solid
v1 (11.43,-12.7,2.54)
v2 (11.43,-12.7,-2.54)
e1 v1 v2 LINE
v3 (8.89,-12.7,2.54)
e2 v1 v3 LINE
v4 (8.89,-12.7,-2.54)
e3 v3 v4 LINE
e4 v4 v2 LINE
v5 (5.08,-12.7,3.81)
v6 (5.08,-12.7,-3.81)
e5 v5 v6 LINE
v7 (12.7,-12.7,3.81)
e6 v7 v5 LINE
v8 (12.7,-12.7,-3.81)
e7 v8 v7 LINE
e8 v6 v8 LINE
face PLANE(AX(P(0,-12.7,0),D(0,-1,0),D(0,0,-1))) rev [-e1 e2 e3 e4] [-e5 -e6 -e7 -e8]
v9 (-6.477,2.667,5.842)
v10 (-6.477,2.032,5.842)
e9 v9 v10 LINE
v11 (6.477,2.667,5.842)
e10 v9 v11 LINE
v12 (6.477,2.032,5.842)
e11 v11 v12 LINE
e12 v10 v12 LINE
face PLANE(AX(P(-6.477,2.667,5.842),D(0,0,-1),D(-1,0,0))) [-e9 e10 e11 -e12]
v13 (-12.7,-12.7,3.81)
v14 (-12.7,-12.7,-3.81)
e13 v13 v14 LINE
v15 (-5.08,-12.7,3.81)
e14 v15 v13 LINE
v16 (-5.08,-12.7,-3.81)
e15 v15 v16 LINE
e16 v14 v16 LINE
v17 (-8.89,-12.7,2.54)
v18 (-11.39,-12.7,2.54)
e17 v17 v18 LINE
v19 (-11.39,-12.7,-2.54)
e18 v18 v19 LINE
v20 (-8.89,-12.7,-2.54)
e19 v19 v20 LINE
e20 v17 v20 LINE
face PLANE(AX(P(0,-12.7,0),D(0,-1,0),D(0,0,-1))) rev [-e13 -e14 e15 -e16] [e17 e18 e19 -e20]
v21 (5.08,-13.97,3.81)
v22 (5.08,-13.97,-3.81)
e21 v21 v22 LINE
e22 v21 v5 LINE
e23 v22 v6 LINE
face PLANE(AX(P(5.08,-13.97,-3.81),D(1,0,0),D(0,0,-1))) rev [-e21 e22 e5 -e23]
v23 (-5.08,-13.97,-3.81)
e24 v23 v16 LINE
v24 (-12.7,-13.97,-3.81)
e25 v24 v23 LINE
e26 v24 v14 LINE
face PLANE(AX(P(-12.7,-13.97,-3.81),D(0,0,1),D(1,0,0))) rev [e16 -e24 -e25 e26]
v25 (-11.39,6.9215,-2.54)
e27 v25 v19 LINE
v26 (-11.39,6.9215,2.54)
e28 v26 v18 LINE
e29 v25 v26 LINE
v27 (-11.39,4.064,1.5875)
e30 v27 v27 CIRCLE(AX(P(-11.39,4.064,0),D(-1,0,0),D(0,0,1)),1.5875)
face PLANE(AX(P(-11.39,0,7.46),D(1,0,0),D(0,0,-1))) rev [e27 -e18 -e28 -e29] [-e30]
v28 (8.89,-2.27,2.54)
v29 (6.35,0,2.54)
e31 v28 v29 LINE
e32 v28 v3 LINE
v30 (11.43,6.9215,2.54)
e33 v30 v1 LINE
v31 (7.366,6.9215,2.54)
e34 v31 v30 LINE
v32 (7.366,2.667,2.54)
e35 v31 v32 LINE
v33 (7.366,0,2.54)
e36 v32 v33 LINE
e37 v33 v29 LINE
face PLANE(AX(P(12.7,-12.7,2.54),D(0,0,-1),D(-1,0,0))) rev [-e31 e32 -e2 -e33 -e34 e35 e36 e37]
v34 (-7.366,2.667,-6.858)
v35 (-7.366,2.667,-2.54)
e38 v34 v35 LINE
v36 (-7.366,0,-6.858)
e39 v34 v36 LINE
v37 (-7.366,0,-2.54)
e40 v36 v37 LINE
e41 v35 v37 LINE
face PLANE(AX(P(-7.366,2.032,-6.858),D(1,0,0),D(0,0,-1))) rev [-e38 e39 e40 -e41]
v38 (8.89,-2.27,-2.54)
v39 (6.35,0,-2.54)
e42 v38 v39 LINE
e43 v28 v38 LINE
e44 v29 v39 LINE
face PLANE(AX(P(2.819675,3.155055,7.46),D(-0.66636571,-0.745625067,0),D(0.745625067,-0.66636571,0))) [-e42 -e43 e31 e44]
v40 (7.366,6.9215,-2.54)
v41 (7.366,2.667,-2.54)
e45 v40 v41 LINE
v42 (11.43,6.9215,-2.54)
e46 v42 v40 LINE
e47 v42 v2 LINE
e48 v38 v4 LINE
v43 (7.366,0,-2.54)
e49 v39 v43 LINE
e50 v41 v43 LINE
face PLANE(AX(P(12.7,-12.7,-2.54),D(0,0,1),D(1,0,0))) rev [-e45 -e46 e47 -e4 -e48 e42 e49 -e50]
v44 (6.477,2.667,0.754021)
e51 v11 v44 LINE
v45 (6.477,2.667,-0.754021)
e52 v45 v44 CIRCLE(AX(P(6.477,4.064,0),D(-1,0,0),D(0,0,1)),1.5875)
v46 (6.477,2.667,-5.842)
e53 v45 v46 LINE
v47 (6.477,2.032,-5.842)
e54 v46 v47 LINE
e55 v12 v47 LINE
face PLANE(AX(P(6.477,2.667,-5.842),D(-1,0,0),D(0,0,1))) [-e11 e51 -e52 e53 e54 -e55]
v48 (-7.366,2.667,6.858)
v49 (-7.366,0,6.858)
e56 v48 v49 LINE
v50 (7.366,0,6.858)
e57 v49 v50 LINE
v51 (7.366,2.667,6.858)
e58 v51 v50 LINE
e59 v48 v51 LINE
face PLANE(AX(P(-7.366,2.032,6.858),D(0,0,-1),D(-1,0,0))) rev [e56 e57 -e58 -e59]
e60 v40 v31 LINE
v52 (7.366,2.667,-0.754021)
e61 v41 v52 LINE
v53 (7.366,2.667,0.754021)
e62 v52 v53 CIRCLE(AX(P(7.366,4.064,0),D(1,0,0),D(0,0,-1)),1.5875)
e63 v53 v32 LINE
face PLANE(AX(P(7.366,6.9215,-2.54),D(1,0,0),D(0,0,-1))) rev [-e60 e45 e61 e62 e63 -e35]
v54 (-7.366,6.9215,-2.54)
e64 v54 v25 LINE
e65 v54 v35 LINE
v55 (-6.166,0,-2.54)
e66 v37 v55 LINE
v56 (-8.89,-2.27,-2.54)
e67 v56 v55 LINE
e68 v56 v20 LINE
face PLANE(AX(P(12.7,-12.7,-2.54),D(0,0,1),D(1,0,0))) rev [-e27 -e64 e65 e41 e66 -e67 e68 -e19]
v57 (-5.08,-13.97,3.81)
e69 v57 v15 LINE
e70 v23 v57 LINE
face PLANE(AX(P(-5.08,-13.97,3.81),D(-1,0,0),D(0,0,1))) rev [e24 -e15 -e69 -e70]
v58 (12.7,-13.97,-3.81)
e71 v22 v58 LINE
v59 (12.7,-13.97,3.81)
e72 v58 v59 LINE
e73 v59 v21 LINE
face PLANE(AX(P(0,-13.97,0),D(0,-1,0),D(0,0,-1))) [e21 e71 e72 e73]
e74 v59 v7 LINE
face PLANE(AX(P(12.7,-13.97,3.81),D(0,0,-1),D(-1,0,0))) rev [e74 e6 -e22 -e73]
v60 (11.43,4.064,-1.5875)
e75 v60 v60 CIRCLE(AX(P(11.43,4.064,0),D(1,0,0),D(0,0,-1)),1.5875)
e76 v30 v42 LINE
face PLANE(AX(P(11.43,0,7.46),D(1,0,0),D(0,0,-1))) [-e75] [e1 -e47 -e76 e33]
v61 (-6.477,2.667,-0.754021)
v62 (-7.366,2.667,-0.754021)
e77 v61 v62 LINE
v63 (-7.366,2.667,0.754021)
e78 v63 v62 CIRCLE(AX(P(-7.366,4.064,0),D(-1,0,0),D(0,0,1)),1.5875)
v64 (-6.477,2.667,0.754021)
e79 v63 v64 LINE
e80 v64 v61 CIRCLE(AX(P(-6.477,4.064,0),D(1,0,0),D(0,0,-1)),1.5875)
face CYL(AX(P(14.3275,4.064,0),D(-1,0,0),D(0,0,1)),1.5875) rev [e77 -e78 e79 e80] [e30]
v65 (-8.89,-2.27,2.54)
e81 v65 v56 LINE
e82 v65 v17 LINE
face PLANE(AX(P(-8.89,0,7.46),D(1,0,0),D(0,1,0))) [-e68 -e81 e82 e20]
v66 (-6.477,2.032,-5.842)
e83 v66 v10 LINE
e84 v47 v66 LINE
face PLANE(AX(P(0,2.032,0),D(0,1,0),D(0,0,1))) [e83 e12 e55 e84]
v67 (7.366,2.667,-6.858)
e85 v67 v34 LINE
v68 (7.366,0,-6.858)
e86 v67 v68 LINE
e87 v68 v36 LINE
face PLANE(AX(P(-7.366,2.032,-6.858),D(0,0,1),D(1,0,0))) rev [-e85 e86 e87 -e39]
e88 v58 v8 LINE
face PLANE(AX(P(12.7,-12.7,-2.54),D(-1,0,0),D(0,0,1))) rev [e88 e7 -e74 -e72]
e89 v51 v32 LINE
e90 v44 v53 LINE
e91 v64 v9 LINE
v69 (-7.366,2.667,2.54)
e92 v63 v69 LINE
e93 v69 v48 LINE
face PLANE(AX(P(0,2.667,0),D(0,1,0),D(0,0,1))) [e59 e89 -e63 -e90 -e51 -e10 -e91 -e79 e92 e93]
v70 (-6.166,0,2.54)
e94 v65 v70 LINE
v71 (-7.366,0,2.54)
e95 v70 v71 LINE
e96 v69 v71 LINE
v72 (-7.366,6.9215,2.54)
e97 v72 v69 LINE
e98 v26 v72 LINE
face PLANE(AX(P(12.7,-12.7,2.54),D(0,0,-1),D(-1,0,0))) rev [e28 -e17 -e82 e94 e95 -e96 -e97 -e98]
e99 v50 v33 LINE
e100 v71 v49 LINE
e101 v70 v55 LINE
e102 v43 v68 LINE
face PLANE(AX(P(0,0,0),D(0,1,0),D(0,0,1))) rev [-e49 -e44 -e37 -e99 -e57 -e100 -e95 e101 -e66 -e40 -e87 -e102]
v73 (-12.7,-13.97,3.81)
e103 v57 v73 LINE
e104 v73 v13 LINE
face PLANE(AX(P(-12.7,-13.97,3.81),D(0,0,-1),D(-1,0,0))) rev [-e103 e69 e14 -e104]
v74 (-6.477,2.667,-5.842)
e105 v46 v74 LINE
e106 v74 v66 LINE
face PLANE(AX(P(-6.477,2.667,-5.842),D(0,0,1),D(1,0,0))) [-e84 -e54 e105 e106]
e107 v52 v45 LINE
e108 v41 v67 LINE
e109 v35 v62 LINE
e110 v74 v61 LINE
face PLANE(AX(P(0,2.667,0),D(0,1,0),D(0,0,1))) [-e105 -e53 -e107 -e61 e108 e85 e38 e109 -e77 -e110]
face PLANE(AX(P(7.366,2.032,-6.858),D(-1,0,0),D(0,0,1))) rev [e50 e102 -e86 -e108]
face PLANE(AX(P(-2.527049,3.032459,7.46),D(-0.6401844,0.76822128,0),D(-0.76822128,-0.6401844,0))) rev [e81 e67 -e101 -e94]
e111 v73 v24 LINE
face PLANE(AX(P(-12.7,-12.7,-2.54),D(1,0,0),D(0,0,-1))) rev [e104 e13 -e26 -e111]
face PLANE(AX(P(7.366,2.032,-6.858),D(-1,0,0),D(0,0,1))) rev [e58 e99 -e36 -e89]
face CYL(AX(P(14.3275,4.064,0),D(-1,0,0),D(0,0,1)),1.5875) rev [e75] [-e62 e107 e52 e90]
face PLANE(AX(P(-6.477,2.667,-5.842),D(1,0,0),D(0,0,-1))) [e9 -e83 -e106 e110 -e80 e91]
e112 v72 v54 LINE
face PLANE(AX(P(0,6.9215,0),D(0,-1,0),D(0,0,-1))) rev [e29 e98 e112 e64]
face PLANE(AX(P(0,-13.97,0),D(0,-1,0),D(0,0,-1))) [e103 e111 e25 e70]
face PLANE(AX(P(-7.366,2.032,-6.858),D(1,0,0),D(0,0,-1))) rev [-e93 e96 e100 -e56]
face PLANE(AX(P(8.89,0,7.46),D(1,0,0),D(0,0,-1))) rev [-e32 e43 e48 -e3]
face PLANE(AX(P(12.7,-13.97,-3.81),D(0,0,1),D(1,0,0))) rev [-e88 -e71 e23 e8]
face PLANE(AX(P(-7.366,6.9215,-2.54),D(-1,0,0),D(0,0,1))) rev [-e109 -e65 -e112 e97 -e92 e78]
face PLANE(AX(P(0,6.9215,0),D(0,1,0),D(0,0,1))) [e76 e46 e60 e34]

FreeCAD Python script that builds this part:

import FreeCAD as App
import Part
import Sketcher
Q = App.Units.Quantity


def add_polygon(sketch, points):
    """Adds a closed chain of lines whose ends are joined by coincident constraints."""
    first, n = sketch.GeometryCount, len(points)
    for a, b in zip(points, points[1:] + points[:1]):
        sketch.addGeometry(Part.LineSegment(App.Vector(*a, 0), App.Vector(*b, 0)), False)
    for i in range(n):
        sketch.addConstraint(Sketcher.Constraint("Coincident", first + i, 2, first + (i + 1) % n, 1))

doc = App.newDocument("Part")
body = doc.addObject("PartDesign::Body", "Body")

# Sketch on XZ plane
sketch1 = body.newObject("Sketcher::SketchObject", "Sketch")
sketch1.AttachmentSupport = (doc.getObject("XZ_Plane"), [""])
sketch1.MapMode = "FlatFace"
add_polygon(sketch1, [(-7, -7), (-7, 7), (7, 7), (7, -7)])  # lines 0-3
sketch1.addConstraint(Sketcher.Constraint("Vertical", 0))
sketch1.addConstraint(Sketcher.Constraint("Horizontal", 1))
sketch1.addConstraint(Sketcher.Constraint("Vertical", 2))
sketch1.addConstraint(Sketcher.Constraint("Horizontal", 3))
sketch1.addConstraint(Sketcher.Constraint("Symmetric", 0, 2, 2, 2, -1, 1))
sketch1.addConstraint(Sketcher.Constraint("DistanceX", 1, 1, 1, 2, Q("0.58 in")))
sketch1.addConstraint(Sketcher.Constraint("DistanceY", 0, 1, 0, 2, Q("0.54 in")))
pad1 = body.newObject("PartDesign::Pad", "Pad")
pad1.Profile = sketch1
pad1.Length = Q("0.08 in")
pad1.Reversed = True

# Sketch on XZ plane
sketch2 = body.newObject("Sketcher::SketchObject", "Sketch001")
sketch2.AttachmentSupport = (doc.getObject("XZ_Plane"), [""])
sketch2.MapMode = "FlatFace"
add_polygon(sketch2, [(13, -3), (13, 3), (-13, 3), (-13, -3)])  # lines 0-3
sketch2.addConstraint(Sketcher.Constraint("Vertical", 0))
sketch2.addConstraint(Sketcher.Constraint("Horizontal", 1))
sketch2.addConstraint(Sketcher.Constraint("Vertical", 2))
sketch2.addConstraint(Sketcher.Constraint("Horizontal", 3))
sketch2.addConstraint(Sketcher.Constraint("Symmetric", 0, 2, 2, 2, -1, 1))
sketch2.addConstraint(Sketcher.Constraint("DistanceX", 1, 2, 1, 1, Q("1 in")))
sketch2.addConstraint(Sketcher.Constraint("DistanceY", 0, 1, 0, 2, Q("0.2 in")))
pad2 = body.newObject("PartDesign::Pad", "Pad001")
pad2.Profile = sketch2
pad2.Length = Q("0.5 in")

# Sketch on XZ plane
sketch3 = body.newObject("Sketcher::SketchObject", "Sketch002")
sketch3.AttachmentSupport = (doc.getObject("XZ_Plane"), [""])
sketch3.MapMode = "FlatFace"
sketch3.AttachmentOffset = App.Placement(App.Vector(0, 0, 0.5 * 25.4), App.Rotation())
add_polygon(sketch3, [(5, 4), (5, -4), (13, -4), (13, 4)])  # lines 0-3
add_polygon(sketch3, [(-13, 4), (-13, -4), (-5, -4), (-5, 4)])  # lines 4-7
sketch3.addConstraint(Sketcher.Constraint("Vertical", 0))
sketch3.addConstraint(Sketcher.Constraint("Horizontal", 1))
sketch3.addConstraint(Sketcher.Constraint("Vertical", 2))
sketch3.addConstraint(Sketcher.Constraint("Horizontal", 3))
sketch3.addConstraint(Sketcher.Constraint("Vertical", 4))
sketch3.addConstraint(Sketcher.Constraint("Horizontal", 5))
sketch3.addConstraint(Sketcher.Constraint("Vertical", 6))
sketch3.addConstraint(Sketcher.Constraint("Horizontal", 7))
sketch3.addConstraint(Sketcher.Constraint("Symmetric", 2, 2, 4, 2, -1, 1))
sketch3.addConstraint(Sketcher.Constraint("Symmetric", 0, 2, 6, 2, -1, 1))
sketch3.addConstraint(Sketcher.Constraint("Horizontal", 1, 2, 4, 2))
sketch3.addConstraint(Sketcher.Constraint("Equal", 7, 0))
sketch3.addConstraint(Sketcher.Constraint("DistanceX", 1, 1, 1, 2, Q("0.3 in")))
sketch3.addConstraint(Sketcher.Constraint("DistanceX", 4, 2, 1, 2, Q("1 in")))
pad3 = body.newObject("PartDesign::Pad", "Pad002")
pad3.Profile = sketch3
pad3.Length = Q("0.05 in")

# Sketch on XY plane
sketch4 = body.newObject("Sketcher::SketchObject", "Sketch003")
sketch4.AttachmentSupport = (doc.getObject("XY_Plane"), [""])
sketch4.MapMode = "FlatFace"
sketch4.AttachmentOffset = App.Placement(App.Vector(0, 0, -0.1 * 25.4), App.Rotation())
add_polygon(sketch4, [(12.7, 0), (12.7, -12.7), (11.4, -12.7), (11.4, 0)])  # lines 0-3
add_polygon(sketch4, [(8.9, -2.3), (8.9, -12.7), (-8.9, -12.7), (-8.9, -2.3), (-6.2, 0), (6.3, 0)])  # lines 4-9
add_polygon(sketch4, [(-11.4, 0), (-11.4, -12.7), (-12.7, -12.7), (-12.7, 0)])  # lines 10-13
sketch4.addConstraint(Sketcher.Constraint("Vertical", 0))
sketch4.addConstraint(Sketcher.Constraint("Horizontal", 1))
sketch4.addConstraint(Sketcher.Constraint("Vertical", 2))
sketch4.addConstraint(Sketcher.Constraint("Horizontal", 3))
sketch4.addConstraint(Sketcher.Constraint("Vertical", 4))
sketch4.addConstraint(Sketcher.Constraint("Horizontal", 5))
sketch4.addConstraint(Sketcher.Constraint("Vertical", 6))
sketch4.addConstraint(Sketcher.Constraint("Horizontal", 8))
sketch4.addConstraint(Sketcher.Constraint("Vertical", 10))
sketch4.addConstraint(Sketcher.Constraint("Horizontal", 11))
sketch4.addConstraint(Sketcher.Constraint("Vertical", 12))
sketch4.addConstraint(Sketcher.Constraint("Horizontal", 13))
sketch4.addConstraint(Sketcher.Constraint("Symmetric", 3, 2, 12, 2, -1, 1))
sketch4.addConstraint(Sketcher.Constraint("Symmetric", 6, 2, 9, 2, -2))
sketch4.addConstraint(Sketcher.Constraint("PointOnObject", 2, 2, -1))
sketch4.addConstraint(Sketcher.Constraint("PointOnObject", 7, 2, -1))
sketch4.addConstraint(Sketcher.Constraint("Horizontal", 1, 2, 4, 2))
sketch4.addConstraint(Sketcher.Constraint("Horizontal", 5, 2, 10, 2))
sketch4.addConstraint(Sketcher.Constraint("DistanceX", 5, 2, 5, 1, Q("0.7 in")))
sketch4.addConstraint(Sketcher.Constraint("DistanceY", 0, 2, 0, 1, Q("0.5 in")))
sketch4.addConstraint(Sketcher.Constraint("DistanceX", 1, 2, 1, 1, Q("0.05 in")))
sketch4.addConstraint(Sketcher.Constraint("DistanceX", -1, 1, 0, 2, Q("0.5 in")))
sketch4.addConstraint(Sketcher.Constraint("DistanceX", 8, 2, 2, 2, Q("0.2 in")))
sketch4.addConstraint(Sketcher.Constraint("DistanceX", 8, 1, 8, 2, Q("12.516 mm")))
sketch4.addConstraint(Sketcher.Constraint("DistanceX", 11, 2, 11, 1, Q("1.31 mm")))
sketch4.addConstraint(Sketcher.Constraint("DistanceY", 4, 2, 4, 1, Q("10.43 mm")))
pocket1 = body.newObject("PartDesign::Pocket", "Pocket")
pocket1.Profile = sketch4
pocket1.Length = 10
pocket1.Reversed = True

# Sketch on XZ plane
sketch5 = body.newObject("Sketcher::SketchObject", "Sketch004")
sketch5.AttachmentSupport = (doc.getObject("XZ_Plane"), [""])
sketch5.MapMode = "FlatFace"
add_polygon(sketch5, [(-11.4, -2.5), (-11.4, 2.5), (-7.4, 2.5), (-7.4, -2.5)])  # lines 0-3
sketch5.addConstraint(Sketcher.Constraint("Vertical", 0))
sketch5.addConstraint(Sketcher.Constraint("Horizontal", 1))
sketch5.addConstraint(Sketcher.Constraint("Vertical", 2))
sketch5.addConstraint(Sketcher.Constraint("Horizontal", 3))
sketch5.addConstraint(Sketcher.Constraint("DistanceY", 0, 1, 0, 2, Q("0.2 in")))
sketch5.addConstraint(Sketcher.Constraint("DistanceY", -1, 1, 0, 2, Q("0.1 in")))
sketch5.addConstraint(Sketcher.Constraint("DistanceX", 1, 2, -1, 1, Q("0.29 in")))
sketch5.addConstraint(Sketcher.Constraint("DistanceX", 1, 1, 1, 2, Q("4.024 mm")))
pad4 = body.newObject("PartDesign::Pad", "Pad003")
pad4.Profile = sketch5
pad4.Length = Q("0.2725 in")
pad4.Reversed = True

# Sketch on XZ plane
sketch6 = body.newObject("Sketcher::SketchObject", "Sketch005")
sketch6.AttachmentSupport = (doc.getObject("XZ_Plane"), [""])
sketch6.MapMode = "FlatFace"
add_polygon(sketch6, [(7.4, -2.5), (7.4, 2.5), (11.4, 2.5), (11.4, -2.5)])  # lines 0-3
sketch6.addConstraint(Sketcher.Constraint("Vertical", 0))
sketch6.addConstraint(Sketcher.Constraint("Horizontal", 1))
sketch6.addConstraint(Sketcher.Constraint("Vertical", 2))
sketch6.addConstraint(Sketcher.Constraint("Horizontal", 3))
sketch6.addConstraint(Sketcher.Constraint("DistanceY", 0, 1, 0, 2, Q("0.2 in")))
sketch6.addConstraint(Sketcher.Constraint("DistanceX", 1, 1, 1, 2, Q("0.16 in")))
sketch6.addConstraint(Sketcher.Constraint("DistanceY", -1, 1, 0, 2, Q("0.1 in")))
sketch6.addConstraint(Sketcher.Constraint("DistanceX", -1, 1, 0, 2, Q("0.29 in")))
pad5 = body.newObject("PartDesign::Pad", "Pad004")
pad5.Profile = sketch6
pad5.Length = Q("0.2725 in")
pad5.Reversed = True

# Sketch on XZ plane
sketch7 = body.newObject("Sketcher::SketchObject", "Sketch006")
sketch7.AttachmentSupport = (doc.getObject("XZ_Plane"), [""])
sketch7.MapMode = "FlatFace"
sketch7.AttachmentOffset = App.Placement(App.Vector(0, 0, -0.08 * 25.4), App.Rotation())
add_polygon(sketch7, [(-7, -7), (-7, 7), (7, 7), (7, -7)])  # lines 0-3
add_polygon(sketch7, [(6, 6), (-6, 6), (-6, -6), (6, -6)])  # lines 4-7
sketch7.addConstraint(Sketcher.Constraint("Vertical", 0))
sketch7.addConstraint(Sketcher.Constraint("Horizontal", 1))
sketch7.addConstraint(Sketcher.Constraint("Vertical", 2))
sketch7.addConstraint(Sketcher.Constraint("Horizontal", 3))
sketch7.addConstraint(Sketcher.Constraint("Horizontal", 4))
sketch7.addConstraint(Sketcher.Constraint("Vertical", 5))
sketch7.addConstraint(Sketcher.Constraint("Horizontal", 6))
sketch7.addConstraint(Sketcher.Constraint("Vertical", 7))
sketch7.addConstraint(Sketcher.Constraint("Symmetric", 0, 2, 2, 2, -1, 1))
sketch7.addConstraint(Sketcher.Constraint("Symmetric", 4, 2, 6, 2, -1, 1))
sketch7.addConstraint(Sketcher.Constraint("DistanceX", 1, 1, 1, 2, Q("0.58 in")))
sketch7.addConstraint(Sketcher.Constraint("DistanceX", 4, 2, 4, 1, Q("0.51 in")))
sketch7.addConstraint(Sketcher.Constraint("DistanceY", 0, 1, 0, 2, Q("0.54 in")))
sketch7.addConstraint(Sketcher.Constraint("DistanceY", 5, 2, 5, 1, Q("0.46 in")))
pad6 = body.newObject("PartDesign::Pad", "Pad005")
pad6.Profile = sketch7
pad6.Length = Q("0.025 in")
pad6.Reversed = True

# Sketch on YZ plane
sketch8 = body.newObject("Sketcher::SketchObject", "Sketch007")
sketch8.AttachmentSupport = (doc.getObject("YZ_Plane"), [""])
sketch8.MapMode = "FlatFace"
sketch8.AttachmentOffset = App.Placement(App.Vector(0, 0, -11.39), App.Rotation())
sketch8.addGeometry(Part.Circle(App.Vector(4.1, 0, 0), App.Vector(0, 0, 1), 1.6), False)
sketch8.addConstraint(Sketcher.Constraint("PointOnObject", 0, 3, -1))
sketch8.addConstraint(Sketcher.Constraint("Diameter", 0, Q("0.125 in")))
sketch8.addConstraint(Sketcher.Constraint("DistanceX", -1, 1, 0, 3, Q("0.16 in")))
pocket2 = body.newObject("PartDesign::Pocket", "Pocket001")
pocket2.Profile = sketch8
pocket2.Length = Q("1.0125 in")
pocket2.Reversed = True

doc.recompute()
